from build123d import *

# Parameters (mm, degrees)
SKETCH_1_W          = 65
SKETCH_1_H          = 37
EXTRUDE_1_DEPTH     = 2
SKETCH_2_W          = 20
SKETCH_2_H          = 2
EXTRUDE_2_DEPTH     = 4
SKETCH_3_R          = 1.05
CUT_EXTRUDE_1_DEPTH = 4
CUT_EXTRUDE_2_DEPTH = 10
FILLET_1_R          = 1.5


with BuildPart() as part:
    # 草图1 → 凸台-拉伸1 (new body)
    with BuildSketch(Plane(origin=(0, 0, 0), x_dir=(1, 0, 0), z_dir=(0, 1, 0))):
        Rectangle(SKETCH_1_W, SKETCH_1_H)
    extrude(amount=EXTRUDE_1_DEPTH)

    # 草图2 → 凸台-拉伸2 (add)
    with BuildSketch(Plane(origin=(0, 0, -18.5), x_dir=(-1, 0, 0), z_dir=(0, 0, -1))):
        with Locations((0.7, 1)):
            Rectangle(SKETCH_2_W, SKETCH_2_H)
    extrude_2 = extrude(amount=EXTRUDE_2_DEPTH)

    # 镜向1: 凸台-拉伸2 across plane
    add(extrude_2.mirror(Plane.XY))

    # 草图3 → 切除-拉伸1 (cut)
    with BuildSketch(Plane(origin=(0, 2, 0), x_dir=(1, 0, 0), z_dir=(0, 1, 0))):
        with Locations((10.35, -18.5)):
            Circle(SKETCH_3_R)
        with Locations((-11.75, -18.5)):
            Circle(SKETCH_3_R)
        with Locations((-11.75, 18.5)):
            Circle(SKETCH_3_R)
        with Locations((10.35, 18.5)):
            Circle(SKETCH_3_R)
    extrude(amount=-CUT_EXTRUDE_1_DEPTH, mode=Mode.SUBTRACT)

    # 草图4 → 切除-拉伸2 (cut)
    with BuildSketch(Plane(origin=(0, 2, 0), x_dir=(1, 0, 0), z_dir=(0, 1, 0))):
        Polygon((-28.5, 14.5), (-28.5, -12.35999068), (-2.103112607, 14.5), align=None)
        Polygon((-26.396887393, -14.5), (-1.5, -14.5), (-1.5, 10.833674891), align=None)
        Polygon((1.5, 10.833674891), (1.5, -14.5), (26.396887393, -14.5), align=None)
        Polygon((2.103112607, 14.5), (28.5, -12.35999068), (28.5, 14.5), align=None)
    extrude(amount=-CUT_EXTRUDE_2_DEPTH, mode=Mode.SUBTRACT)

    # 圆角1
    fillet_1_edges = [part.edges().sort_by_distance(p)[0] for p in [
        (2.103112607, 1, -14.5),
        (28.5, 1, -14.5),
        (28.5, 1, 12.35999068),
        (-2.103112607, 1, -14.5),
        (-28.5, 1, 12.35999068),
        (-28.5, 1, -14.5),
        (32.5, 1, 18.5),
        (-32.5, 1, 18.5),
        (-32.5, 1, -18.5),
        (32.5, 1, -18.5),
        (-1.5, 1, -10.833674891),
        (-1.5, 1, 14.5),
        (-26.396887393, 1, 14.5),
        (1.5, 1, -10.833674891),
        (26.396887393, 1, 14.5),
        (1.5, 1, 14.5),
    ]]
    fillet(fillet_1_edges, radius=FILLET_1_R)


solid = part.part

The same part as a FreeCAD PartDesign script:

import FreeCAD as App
import Part
import Sketcher
from FreeCAD import Vector


def edges_at(feature, points):
    """Names of the edges that pass closest to the given points."""
    edges = feature.Shape.Edges
    near = lambda p: min(range(len(edges)), key=lambda i: edges[i].distToShape(Part.Vertex(*p))[0])
    return sorted({f"Edge{near(p) + 1}" for p in points})

doc = App.newDocument("Part")
body = doc.addObject("PartDesign::Body", "Body")

sketch1 = body.newObject("Sketcher::SketchObject", "Sketch")
sketch1.AttachmentSupport = (doc.getObject("XZ_Plane"), [""])
sketch1.MapMode = "FlatFace"
sketch1.addGeometry([
    Part.LineSegment(Vector(-32, -18, 0), Vector(-32, 18, 0)),
    Part.LineSegment(Vector(-32, 18, 0), Vector(32, 18, 0)),
    Part.LineSegment(Vector(32, 18, 0), Vector(32, -18, 0)),
    Part.LineSegment(Vector(32, -18, 0), Vector(-32, -18, 0)),
], False)
sketch1.addConstraint([
    Sketcher.Constraint("Coincident", 0, 2, 1, 1),
    Sketcher.Constraint("Coincident", 1, 2, 2, 1),
    Sketcher.Constraint("Coincident", 2, 2, 3, 1),
    Sketcher.Constraint("Coincident", 3, 2, 0, 1),
    Sketcher.Constraint("Vertical", 0),
    Sketcher.Constraint("Horizontal", 1),
    Sketcher.Constraint("Vertical", 2),
    Sketcher.Constraint("Horizontal", 3),
    Sketcher.Constraint("Symmetric", 0, 2, 2, 2, -1, 1),
    Sketcher.Constraint("DistanceX", 1, 1, 1, 2, 65.0),
    Sketcher.Constraint("DistanceY", 0, 1, 0, 2, 37.0),
])
pad1 = body.newObject("PartDesign::Pad", "Pad")
pad1.Profile = sketch1
pad1.Length = 2
pad1.Reversed = True

sketch2 = body.newObject("Sketcher::SketchObject", "Sketch001")
sketch2.AttachmentSupport = (doc.getObject("XY_Plane"), [""])
sketch2.MapMode = "FlatFace"
sketch2.AttachmentOffset = App.Placement(Vector(0, 0, -18.5), App.Rotation())
sketch2.addGeometry([
    Part.LineSegment(Vector(9.3, 2, 0), Vector(9.3, 0, 0)),
    Part.LineSegment(Vector(9.3, 0, 0), Vector(-10.7, 0, 0)),
    Part.LineSegment(Vector(-10.7, 0, 0), Vector(-10.7, 2, 0)),
    Part.LineSegment(Vector(-10.7, 2, 0), Vector(9.3, 2, 0)),
], False)
sketch2.addConstraint([
    Sketcher.Constraint("Coincident", 0, 2, 1, 1),
    Sketcher.Constraint("Coincident", 1, 2, 2, 1),
    Sketcher.Constraint("Coincident", 2, 2, 3, 1),
    Sketcher.Constraint("Coincident", 3, 2, 0, 1),
    Sketcher.Constraint("Vertical", 0),
    Sketcher.Constraint("Horizontal", 1),
    Sketcher.Constraint("Vertical", 2),
    Sketcher.Constraint("Horizontal", 3),
    Sketcher.Constraint("PointOnObject", 0, 2, -1),
    Sketcher.Constraint("DistanceX", 1, 2, 1, 1, 20.0),
    Sketcher.Constraint("DistanceY", 0, 2, 0, 1, 2.0),
    Sketcher.Constraint("DistanceX", -1, 1, 0, 2, 9.3),
])
pad2 = body.newObject("PartDesign::Pad", "Pad001")
pad2.Profile = sketch2
pad2.Length = 4
pad2.Reversed = True
doc.recompute()

mirrored = body.newObject("PartDesign::Mirrored", "Mirrored")
mirrored.Originals = [pad2]
mirrored.MirrorPlane = (doc.getObject("XY_Plane"), [""])
body.Tip = mirrored

sketch3 = body.newObject("Sketcher::SketchObject", "Sketch002")
sketch3.AttachmentSupport = (doc.getObject("XZ_Plane"), [""])
sketch3.MapMode = "FlatFace"
sketch3.AttachmentOffset = App.Placement(Vector(0, 0, -2), App.Rotation())
sketch3.addGeometry([
    Part.Circle(Vector(10.3, 18.5, 0), Vector(0, 0, 1), 1.1),
    Part.Circle(Vector(-11.8, 18.5, 0), Vector(0, 0, 1), 1.1),
    Part.Circle(Vector(-11.8, -18.5, 0), Vector(0, 0, 1), 1.1),
    Part.Circle(Vector(10.3, -18.5, 0), Vector(0, 0, 1), 1.1),
], False)
sketch3.addConstraint([
    Sketcher.Constraint("Equal", 0, 1),
    Sketcher.Constraint("Equal", 1, 2),
    Sketcher.Constraint("Equal", 2, 3),
    Sketcher.Constraint("Symmetric", 1, 3, 2, 3, -1),
    Sketcher.Constraint("Symmetric", 0, 3, 3, 3, -1),
    Sketcher.Constraint("Horizontal", 0, 3, 1, 3),
    Sketcher.Constraint("Diameter", 0, 2.1),
    Sketcher.Constraint("DistanceY", 2, 3, 1, 3, 37.0),
    Sketcher.Constraint("DistanceX", 1, 3, 0, 3, 22.1),
    Sketcher.Constraint("DistanceX", -1, 1, 0, 3, 10.35),
])
pocket1 = body.newObject("PartDesign::Pocket", "Pocket")
pocket1.Profile = sketch3
pocket1.Length = 4
pocket1.Reversed = True

sketch4 = body.newObject("Sketcher::SketchObject", "Sketch003")
sketch4.AttachmentSupport = (doc.getObject("XZ_Plane"), [""])
sketch4.MapMode = "FlatFace"
sketch4.AttachmentOffset = App.Placement(Vector(0, 0, -2), App.Rotation())
sketch4.addGeometry([
    Part.LineSegment(Vector(-28, -14, 0), Vector(-28, 12, 0)),
    Part.LineSegment(Vector(-28, 12, 0), Vector(-2, -14, 0)),
    Part.LineSegment(Vector(-2, -14, 0), Vector(-28, -14, 0)),
    Part.LineSegment(Vector(-26, 14, 0), Vector(-2, 14, 0)),
    Part.LineSegment(Vector(-2, 14, 0), Vector(-2, -11, 0)),
    Part.LineSegment(Vector(-2, -11, 0), Vector(-26, 14, 0)),
    Part.LineSegment(Vector(2, -11, 0), Vector(2, 14, 0)),
    Part.LineSegment(Vector(2, 14, 0), Vector(26, 14, 0)),
    Part.LineSegment(Vector(26, 14, 0), Vector(2, -11, 0)),
    Part.LineSegment(Vector(2, -14, 0), Vector(28, 12, 0)),
    Part.LineSegment(Vector(28, 12, 0), Vector(28, -14, 0)),
    Part.LineSegment(Vector(28, -14, 0), Vector(2, -14, 0)),
], False)
sketch4.addConstraint([
    Sketcher.Constraint("Coincident", 0, 2, 1, 1),
    Sketcher.Constraint("Coincident", 1, 2, 2, 1),
    Sketcher.Constraint("Coincident", 2, 2, 0, 1),
    Sketcher.Constraint("Coincident", 3, 2, 4, 1),
    Sketcher.Constraint("Coincident", 4, 2, 5, 1),
    Sketcher.Constraint("Coincident", 5, 2, 3, 1),
    Sketcher.Constraint("Coincident", 6, 2, 7, 1),
    Sketcher.Constraint("Coincident", 7, 2, 8, 1),
    Sketcher.Constraint("Coincident", 8, 2, 6, 1),
    Sketcher.Constraint("Coincident", 9, 2, 10, 1),
    Sketcher.Constraint("Coincident", 10, 2, 11, 1),
    Sketcher.Constraint("Coincident", 11, 2, 9, 1),
    Sketcher.Constraint("Vertical", 0),
    Sketcher.Constraint("Horizontal", 2),
    Sketcher.Constraint("Horizontal", 3),
    Sketcher.Constraint("Vertical", 4),
    Sketcher.Constraint("Vertical", 6),
    Sketcher.Constraint("Horizontal", 7),
    Sketcher.Constraint("Vertical", 10),
    Sketcher.Constraint("Horizontal", 11),
    Sketcher.Constraint("Symmetric", 3, 2, 6, 2, -2),
    Sketcher.Constraint("Symmetric", 0, 2, 9, 2, -2),
    Sketcher.Constraint("Symmetric", 1, 2, 11, 2, -2),
    Sketcher.Constraint("Parallel", 1, 5),
    Sketcher.Constraint("Parallel", 8, 9),
    Sketcher.Constraint("Horizontal", 4, 2, 8, 2),
    Sketcher.Constraint("DistanceX", 0, 2, 3, 2, 27.0),
    Sketcher.Constraint("DistanceY", 1, 2, 3, 2, 29.0),
    Sketcher.Constraint("DistanceX", 3, 2, 6, 2, 3.0),
    Sketcher.Constraint("DistanceY", 1, 2, -1, 1, 14.5),
    Sketcher.Constraint("DistanceX", 1, 2, 7, 2, 28.5),
    Sketcher.Constraint("DistanceY", 0, 1, 0, 2, 26.859991),
    Sketcher.Constraint("DistanceX", 2, 2, 2, 1, 26.396887),
])
pocket2 = body.newObject("PartDesign::Pocket", "Pocket001")
pocket2.Profile = sketch4
pocket2.Length = 10
pocket2.Reversed = True
doc.recompute()

fillet = body.newObject("PartDesign::Fillet", "Fillet")
fillet.Base = (pocket2, edges_at(pocket2, [
    (2.103, 1, -14.5),
    (28.5, 1, -14.5),
    (28.5, 1, 12.36),
    (-2.103, 1, -14.5),
    (-28.5, 1, 12.36),
    (-28.5, 1, -14.5),
    (32.5, 1, 18.5),
    (-32.5, 1, 18.5),
    (-32.5, 1, -18.5),
    (32.5, 1, -18.5),
    (-1.5, 1, -10.834),
    (-1.5, 1, 14.5),
    (-26.397, 1, 14.5),
    (1.5, 1, -10.834),
    (26.397, 1, 14.5),
    (1.5, 1, 14.5),
]))
fillet.Radius = 1.5

doc.recompute()
